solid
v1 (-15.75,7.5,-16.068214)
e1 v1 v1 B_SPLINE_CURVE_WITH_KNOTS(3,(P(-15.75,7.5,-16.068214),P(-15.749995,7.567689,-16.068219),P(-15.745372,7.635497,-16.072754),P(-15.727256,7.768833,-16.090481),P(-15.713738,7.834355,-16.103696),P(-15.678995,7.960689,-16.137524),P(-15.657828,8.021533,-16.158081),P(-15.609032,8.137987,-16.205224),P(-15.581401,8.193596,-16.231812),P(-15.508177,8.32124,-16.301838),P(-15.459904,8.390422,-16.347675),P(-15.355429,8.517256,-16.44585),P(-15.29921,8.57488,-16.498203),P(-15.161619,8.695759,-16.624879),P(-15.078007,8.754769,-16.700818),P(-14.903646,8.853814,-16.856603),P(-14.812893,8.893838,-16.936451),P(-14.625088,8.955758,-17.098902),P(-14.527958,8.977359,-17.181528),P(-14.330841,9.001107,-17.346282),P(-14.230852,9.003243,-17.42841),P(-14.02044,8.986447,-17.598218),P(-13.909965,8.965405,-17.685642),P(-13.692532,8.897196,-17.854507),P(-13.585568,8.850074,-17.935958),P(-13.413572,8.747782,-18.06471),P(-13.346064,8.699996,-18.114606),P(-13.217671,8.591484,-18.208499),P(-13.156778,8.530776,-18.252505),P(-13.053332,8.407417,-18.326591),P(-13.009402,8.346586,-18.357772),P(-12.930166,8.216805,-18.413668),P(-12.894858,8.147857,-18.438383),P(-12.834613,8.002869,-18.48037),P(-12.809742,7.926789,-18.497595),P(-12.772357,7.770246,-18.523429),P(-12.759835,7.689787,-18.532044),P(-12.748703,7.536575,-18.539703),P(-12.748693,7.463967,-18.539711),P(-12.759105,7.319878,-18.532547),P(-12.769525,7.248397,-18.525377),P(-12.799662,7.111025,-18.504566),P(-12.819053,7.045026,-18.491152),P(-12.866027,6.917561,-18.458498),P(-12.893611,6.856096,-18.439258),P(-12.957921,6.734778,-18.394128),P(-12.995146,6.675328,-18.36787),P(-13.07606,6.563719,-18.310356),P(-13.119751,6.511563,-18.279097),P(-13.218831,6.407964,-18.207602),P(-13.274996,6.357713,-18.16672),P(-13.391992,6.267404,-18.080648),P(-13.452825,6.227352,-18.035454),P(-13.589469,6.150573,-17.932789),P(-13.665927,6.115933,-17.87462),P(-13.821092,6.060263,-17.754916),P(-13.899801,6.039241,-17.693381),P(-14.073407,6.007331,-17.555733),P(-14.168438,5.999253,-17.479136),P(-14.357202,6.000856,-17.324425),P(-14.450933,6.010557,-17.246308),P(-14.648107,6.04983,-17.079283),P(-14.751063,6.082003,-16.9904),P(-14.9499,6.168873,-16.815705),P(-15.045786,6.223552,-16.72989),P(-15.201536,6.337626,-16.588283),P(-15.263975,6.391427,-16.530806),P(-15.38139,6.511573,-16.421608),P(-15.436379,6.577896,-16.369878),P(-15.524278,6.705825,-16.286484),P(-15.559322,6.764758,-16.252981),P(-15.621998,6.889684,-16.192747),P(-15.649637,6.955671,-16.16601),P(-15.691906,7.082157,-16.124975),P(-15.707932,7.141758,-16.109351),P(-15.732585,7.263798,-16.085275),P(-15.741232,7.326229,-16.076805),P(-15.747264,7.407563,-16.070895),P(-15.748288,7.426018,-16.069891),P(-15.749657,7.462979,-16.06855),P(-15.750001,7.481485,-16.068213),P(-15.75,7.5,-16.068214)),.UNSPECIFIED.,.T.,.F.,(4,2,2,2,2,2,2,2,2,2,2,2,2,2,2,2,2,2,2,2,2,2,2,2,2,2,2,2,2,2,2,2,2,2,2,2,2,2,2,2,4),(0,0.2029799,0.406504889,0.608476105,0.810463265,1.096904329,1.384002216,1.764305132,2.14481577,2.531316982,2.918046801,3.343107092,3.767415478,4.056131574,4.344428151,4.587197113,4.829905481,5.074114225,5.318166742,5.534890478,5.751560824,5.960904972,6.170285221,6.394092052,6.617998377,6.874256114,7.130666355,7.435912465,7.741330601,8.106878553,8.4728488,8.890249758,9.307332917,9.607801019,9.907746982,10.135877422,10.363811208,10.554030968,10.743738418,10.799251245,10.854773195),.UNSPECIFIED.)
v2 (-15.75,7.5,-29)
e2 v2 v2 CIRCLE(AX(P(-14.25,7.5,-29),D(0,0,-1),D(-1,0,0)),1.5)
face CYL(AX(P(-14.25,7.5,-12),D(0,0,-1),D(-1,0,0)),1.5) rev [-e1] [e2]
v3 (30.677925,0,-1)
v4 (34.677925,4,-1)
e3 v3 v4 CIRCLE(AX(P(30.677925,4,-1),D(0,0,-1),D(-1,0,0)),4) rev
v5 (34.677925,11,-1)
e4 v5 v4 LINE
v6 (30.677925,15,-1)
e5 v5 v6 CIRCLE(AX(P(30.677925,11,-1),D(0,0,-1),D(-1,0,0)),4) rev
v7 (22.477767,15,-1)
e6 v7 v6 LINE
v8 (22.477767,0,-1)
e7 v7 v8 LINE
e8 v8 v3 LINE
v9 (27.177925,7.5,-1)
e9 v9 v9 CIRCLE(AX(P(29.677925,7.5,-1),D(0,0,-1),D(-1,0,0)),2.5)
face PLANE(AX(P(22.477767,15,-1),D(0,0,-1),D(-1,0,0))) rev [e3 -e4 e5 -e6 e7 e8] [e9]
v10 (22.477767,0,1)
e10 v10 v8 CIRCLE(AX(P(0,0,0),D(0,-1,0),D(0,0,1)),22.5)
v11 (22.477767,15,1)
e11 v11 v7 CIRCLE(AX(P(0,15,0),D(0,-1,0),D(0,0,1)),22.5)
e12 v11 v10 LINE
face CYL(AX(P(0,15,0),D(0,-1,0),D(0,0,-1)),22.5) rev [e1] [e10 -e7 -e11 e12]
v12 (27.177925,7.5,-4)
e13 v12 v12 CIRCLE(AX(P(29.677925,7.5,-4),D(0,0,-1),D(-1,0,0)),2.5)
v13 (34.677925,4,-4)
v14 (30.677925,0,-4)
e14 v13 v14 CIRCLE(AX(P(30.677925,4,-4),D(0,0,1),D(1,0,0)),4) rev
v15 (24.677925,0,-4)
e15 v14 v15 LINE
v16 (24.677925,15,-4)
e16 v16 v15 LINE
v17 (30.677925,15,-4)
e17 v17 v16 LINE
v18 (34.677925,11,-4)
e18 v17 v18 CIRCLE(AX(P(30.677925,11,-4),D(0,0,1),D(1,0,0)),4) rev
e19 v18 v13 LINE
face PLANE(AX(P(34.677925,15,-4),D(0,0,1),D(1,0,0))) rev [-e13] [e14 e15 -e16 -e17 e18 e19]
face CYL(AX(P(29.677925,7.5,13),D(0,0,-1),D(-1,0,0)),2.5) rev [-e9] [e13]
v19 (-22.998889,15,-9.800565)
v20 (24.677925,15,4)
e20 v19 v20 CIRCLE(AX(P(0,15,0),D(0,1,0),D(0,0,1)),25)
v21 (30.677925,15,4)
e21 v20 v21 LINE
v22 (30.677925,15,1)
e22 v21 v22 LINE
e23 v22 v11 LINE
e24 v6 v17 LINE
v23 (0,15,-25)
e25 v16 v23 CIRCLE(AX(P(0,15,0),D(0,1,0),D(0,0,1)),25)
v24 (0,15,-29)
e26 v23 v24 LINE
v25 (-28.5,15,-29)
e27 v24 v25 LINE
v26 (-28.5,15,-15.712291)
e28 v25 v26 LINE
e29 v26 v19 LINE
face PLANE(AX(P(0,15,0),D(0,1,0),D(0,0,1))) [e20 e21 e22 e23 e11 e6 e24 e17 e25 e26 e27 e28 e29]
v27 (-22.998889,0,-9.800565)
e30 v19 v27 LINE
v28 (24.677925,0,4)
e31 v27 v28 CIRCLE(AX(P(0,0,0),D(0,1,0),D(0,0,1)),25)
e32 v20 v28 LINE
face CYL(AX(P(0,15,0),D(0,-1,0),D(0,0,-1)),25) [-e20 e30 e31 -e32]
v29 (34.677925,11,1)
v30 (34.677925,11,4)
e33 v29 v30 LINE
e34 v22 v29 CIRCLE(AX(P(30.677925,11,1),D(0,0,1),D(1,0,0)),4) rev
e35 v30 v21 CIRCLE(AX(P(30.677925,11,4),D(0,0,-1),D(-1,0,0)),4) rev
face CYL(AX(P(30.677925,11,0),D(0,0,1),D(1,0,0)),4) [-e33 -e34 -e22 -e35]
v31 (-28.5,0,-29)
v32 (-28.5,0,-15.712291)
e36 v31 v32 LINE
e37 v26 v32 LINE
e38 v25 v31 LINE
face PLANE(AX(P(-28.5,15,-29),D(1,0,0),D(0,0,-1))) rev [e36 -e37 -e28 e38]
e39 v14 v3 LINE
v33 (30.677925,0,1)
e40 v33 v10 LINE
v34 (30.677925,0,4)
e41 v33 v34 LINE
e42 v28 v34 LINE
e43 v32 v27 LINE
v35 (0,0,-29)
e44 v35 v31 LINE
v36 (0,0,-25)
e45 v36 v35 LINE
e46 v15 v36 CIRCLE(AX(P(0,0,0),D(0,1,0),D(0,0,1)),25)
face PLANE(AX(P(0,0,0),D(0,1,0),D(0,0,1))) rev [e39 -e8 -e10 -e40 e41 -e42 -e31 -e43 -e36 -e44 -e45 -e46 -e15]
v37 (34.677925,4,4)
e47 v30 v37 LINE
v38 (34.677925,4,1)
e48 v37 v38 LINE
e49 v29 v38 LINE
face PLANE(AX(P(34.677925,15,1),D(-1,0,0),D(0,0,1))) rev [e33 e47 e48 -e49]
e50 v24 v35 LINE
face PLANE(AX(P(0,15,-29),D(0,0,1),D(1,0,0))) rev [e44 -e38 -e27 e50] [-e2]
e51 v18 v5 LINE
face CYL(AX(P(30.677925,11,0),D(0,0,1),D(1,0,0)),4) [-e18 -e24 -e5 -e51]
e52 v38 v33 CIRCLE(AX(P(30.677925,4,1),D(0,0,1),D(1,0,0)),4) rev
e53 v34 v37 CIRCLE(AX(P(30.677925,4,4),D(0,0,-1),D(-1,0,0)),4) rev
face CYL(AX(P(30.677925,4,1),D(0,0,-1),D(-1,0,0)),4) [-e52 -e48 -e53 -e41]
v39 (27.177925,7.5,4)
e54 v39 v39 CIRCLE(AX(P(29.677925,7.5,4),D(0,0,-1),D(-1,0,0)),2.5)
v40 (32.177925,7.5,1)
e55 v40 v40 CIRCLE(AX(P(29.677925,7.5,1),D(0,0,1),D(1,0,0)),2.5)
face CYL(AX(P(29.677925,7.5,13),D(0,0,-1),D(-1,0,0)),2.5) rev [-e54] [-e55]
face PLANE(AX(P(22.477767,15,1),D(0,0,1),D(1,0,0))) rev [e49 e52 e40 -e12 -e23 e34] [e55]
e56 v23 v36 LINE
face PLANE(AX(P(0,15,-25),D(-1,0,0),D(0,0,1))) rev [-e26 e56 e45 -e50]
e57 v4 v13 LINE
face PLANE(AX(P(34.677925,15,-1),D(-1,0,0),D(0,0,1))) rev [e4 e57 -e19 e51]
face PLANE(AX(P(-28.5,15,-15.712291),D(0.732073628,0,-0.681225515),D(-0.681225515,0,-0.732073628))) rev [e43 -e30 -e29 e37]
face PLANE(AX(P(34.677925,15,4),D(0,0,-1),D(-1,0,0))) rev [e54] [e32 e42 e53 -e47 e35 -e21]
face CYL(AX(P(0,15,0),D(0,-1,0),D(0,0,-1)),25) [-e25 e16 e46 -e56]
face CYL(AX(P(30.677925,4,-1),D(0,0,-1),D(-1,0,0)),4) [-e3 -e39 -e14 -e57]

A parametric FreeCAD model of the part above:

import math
import FreeCAD as App
import Part
import Sketcher
from FreeCAD import Vector
Q = App.Units.Quantity


def edges_at(feature, points):
    """Names of the edges that pass closest to the given points."""
    edges = feature.Shape.Edges
    near = lambda p: min(range(len(edges)), key=lambda i: edges[i].distToShape(Part.Vertex(*p))[0])
    return sorted({f"Edge{near(p) + 1}" for p in points})

doc = App.newDocument("Part")
body = doc.addObject("PartDesign::Body", "Body")

# Sketch on XZ plane
sketch1 = body.newObject("Sketcher::SketchObject", "Sketch")
sketch1.AttachmentSupport = (doc.getObject("XZ_Plane"), [""])
sketch1.MapMode = "FlatFace"
sketch1.addGeometry(Part.LineSegment(Vector(0, -25, 0), Vector(0, -29, 0)), False)
sketch1.addGeometry(Part.LineSegment(Vector(0, -29, 0), Vector(-28.5, -29, 0)), False)
sketch1.addGeometry(Part.LineSegment(Vector(-28.5, -29, 0), Vector(-28.5, -15.712291, 0)), False)
sketch1.addGeometry(Part.LineSegment(Vector(-28.5, -15.712291, 0), Vector(-22.998889, -9.800565, 0)), False)
sketch1.addGeometry(Part.ArcOfCircle(Part.Circle(Vector(0, 0, 0), Vector(0, 0, 1), 25), math.radians(9.206896), math.radians(203.080411)), False)
sketch1.addGeometry(Part.LineSegment(Vector(24.677925, 4, 0), Vector(34.677925, 4, 0)), False)
sketch1.addGeometry(Part.LineSegment(Vector(34.677925, 4, 0), Vector(34.677925, 1, 0)), False)
sketch1.addGeometry(Part.LineSegment(Vector(34.677925, 1, 0), Vector(22.477767, 1, 0)), False)
sketch1.addGeometry(Part.ArcOfCircle(Part.Circle(Vector(0, 0, 0), Vector(0, 0, 1), 22.5), math.radians(2.547318), math.radians(357.452682)), False)
sketch1.addGeometry(Part.LineSegment(Vector(22.477767, -1, 0), Vector(34.677925, -1, 0)), False)
sketch1.addGeometry(Part.LineSegment(Vector(34.677925, -1, 0), Vector(34.677925, -4, 0)), False)
sketch1.addGeometry(Part.LineSegment(Vector(34.677925, -4, 0), Vector(24.677925, -4, 0)), False)
sketch1.addGeometry(Part.ArcOfCircle(Part.Circle(Vector(0, 0, 0), Vector(0, 0, 1), 25), math.radians(-90), math.radians(-9.206896)), False)
sketch1.addConstraint(Sketcher.Constraint("Coincident", 0, 2, 1, 1))
sketch1.addConstraint(Sketcher.Constraint("Coincident", 1, 2, 2, 1))
sketch1.addConstraint(Sketcher.Constraint("Coincident", 2, 2, 3, 1))
sketch1.addConstraint(Sketcher.Constraint("Coincident", 3, 2, 4, 2))
sketch1.addConstraint(Sketcher.Constraint("Coincident", 4, 1, 5, 1))
sketch1.addConstraint(Sketcher.Constraint("Coincident", 5, 2, 6, 1))
sketch1.addConstraint(Sketcher.Constraint("Coincident", 6, 2, 7, 1))
sketch1.addConstraint(Sketcher.Constraint("Coincident", 7, 2, 8, 1))
sketch1.addConstraint(Sketcher.Constraint("Coincident", 8, 2, 9, 1))
sketch1.addConstraint(Sketcher.Constraint("Coincident", 9, 2, 10, 1))
sketch1.addConstraint(Sketcher.Constraint("Coincident", 10, 2, 11, 1))
sketch1.addConstraint(Sketcher.Constraint("Coincident", 11, 2, 12, 2))
sketch1.addConstraint(Sketcher.Constraint("Coincident", 12, 1, 0, 1))
sketch1.addConstraint(Sketcher.Constraint("Vertical", 0))
sketch1.addConstraint(Sketcher.Constraint("Horizontal", 1))
sketch1.addConstraint(Sketcher.Constraint("Vertical", 2))
sketch1.addConstraint(Sketcher.Constraint("Horizontal", 5))
sketch1.addConstraint(Sketcher.Constraint("Vertical", 6))
sketch1.addConstraint(Sketcher.Constraint("Horizontal", 7))
sketch1.addConstraint(Sketcher.Constraint("Horizontal", 9))
sketch1.addConstraint(Sketcher.Constraint("Vertical", 10))
sketch1.addConstraint(Sketcher.Constraint("Horizontal", 11))
sketch1.addConstraint(Sketcher.Constraint("Coincident", 4, 3, -1, 1))
sketch1.addConstraint(Sketcher.Constraint("Coincident", 8, 3, -1, 1))
sketch1.addConstraint(Sketcher.Constraint("Coincident", 12, 3, -1, 1))
sketch1.addConstraint(Sketcher.Constraint("Equal", 4, 12))
sketch1.addConstraint(Sketcher.Constraint("Symmetric", 6, 2, 9, 2, -1))
sketch1.addConstraint(Sketcher.Constraint("PointOnObject", 0, 2, -2))
sketch1.addConstraint(Sketcher.Constraint("Vertical", 4, 1, 11, 2))
sketch1.addConstraint(Sketcher.Constraint("Radius", 4, Q("25 mm")))
sketch1.addConstraint(Sketcher.Constraint("Radius", 8, Q("22.5 mm")))
sketch1.addConstraint(Sketcher.Constraint("DistanceX", 5, 1, 5, 2, Q("10 mm")))
sketch1.addConstraint(Sketcher.Constraint("DistanceY", 0, 2, 0, 1, Q("4 mm")))
sketch1.addConstraint(Sketcher.Constraint("DistanceY", 6, 2, 6, 1, Q("3 mm")))
sketch1.addConstraint(Sketcher.Constraint("DistanceX", 1, 2, 1, 1, Q("28.5 mm")))
sketch1.addConstraint(Sketcher.Constraint("DistanceY", -1, 1, 4, 1, Q("4 mm")))
sketch1.addConstraint(Sketcher.Constraint("DistanceY", 2, 1, 2, 2, Q("13.287709 mm")))
sketch1.addConstraint(Sketcher.Constraint("DistanceX", 3, 2, -1, 1, Q("22.998889 mm")))
pad1 = body.newObject("PartDesign::Pad", "Pad")
pad1.Profile = sketch1
pad1.Length = 15
pad1.Reversed = True

# Sketch on XY plane
sketch2 = body.newObject("Sketcher::SketchObject", "Sketch001")
sketch2.AttachmentSupport = (doc.getObject("XY_Plane"), [""])
sketch2.MapMode = "FlatFace"
sketch2.AttachmentOffset = App.Placement(Vector(0, 0, -29), App.Rotation())
sketch2.addGeometry(Part.Circle(Vector(-14.25, 7.5, 0), Vector(0, 0, 1), 1.5), False)
sketch2.addConstraint(Sketcher.Constraint("Diameter", 0, Q("3 mm")))
sketch2.addConstraint(Sketcher.Constraint("DistanceY", -1, 1, 0, 3, Q("7.5 mm")))
sketch2.addConstraint(Sketcher.Constraint("DistanceX", 0, 3, -1, 1, Q("14.25 mm")))
pocket1 = body.newObject("PartDesign::Pocket", "Pocket")
pocket1.Profile = sketch2
pocket1.Length = 17
pocket1.Reversed = True

# Sketch on XY plane
sketch3 = body.newObject("Sketcher::SketchObject", "Sketch002")
sketch3.AttachmentSupport = (doc.getObject("XY_Plane"), [""])
sketch3.MapMode = "FlatFace"
sketch3.AttachmentOffset = App.Placement(Vector(0, 0, -4), App.Rotation())
sketch3.addGeometry(Part.Circle(Vector(29.677925, 7.5, 0), Vector(0, 0, 1), 2.5), False)
sketch3.addConstraint(Sketcher.Constraint("Diameter", 0, Q("5 mm")))
sketch3.addConstraint(Sketcher.Constraint("DistanceY", -1, 1, 0, 3, Q("7.5 mm")))
sketch3.addConstraint(Sketcher.Constraint("DistanceX", -1, 1, 0, 3, Q("29.677925 mm")))
pocket2 = body.newObject("PartDesign::Pocket", "Pocket001")
pocket2.Profile = sketch3
pocket2.Length = 17
pocket2.Reversed = True
doc.recompute()

fillet = body.newObject("PartDesign::Fillet", "Fillet")
fillet.Base = (pocket2, edges_at(pocket2, [
    (34.678, 0, -2.5),
    (34.678, 0, 2.5),
    (34.678, 15, 2.5),
    (34.678, 15, -2.5),
]))
fillet.Radius = 4

doc.recompute()
